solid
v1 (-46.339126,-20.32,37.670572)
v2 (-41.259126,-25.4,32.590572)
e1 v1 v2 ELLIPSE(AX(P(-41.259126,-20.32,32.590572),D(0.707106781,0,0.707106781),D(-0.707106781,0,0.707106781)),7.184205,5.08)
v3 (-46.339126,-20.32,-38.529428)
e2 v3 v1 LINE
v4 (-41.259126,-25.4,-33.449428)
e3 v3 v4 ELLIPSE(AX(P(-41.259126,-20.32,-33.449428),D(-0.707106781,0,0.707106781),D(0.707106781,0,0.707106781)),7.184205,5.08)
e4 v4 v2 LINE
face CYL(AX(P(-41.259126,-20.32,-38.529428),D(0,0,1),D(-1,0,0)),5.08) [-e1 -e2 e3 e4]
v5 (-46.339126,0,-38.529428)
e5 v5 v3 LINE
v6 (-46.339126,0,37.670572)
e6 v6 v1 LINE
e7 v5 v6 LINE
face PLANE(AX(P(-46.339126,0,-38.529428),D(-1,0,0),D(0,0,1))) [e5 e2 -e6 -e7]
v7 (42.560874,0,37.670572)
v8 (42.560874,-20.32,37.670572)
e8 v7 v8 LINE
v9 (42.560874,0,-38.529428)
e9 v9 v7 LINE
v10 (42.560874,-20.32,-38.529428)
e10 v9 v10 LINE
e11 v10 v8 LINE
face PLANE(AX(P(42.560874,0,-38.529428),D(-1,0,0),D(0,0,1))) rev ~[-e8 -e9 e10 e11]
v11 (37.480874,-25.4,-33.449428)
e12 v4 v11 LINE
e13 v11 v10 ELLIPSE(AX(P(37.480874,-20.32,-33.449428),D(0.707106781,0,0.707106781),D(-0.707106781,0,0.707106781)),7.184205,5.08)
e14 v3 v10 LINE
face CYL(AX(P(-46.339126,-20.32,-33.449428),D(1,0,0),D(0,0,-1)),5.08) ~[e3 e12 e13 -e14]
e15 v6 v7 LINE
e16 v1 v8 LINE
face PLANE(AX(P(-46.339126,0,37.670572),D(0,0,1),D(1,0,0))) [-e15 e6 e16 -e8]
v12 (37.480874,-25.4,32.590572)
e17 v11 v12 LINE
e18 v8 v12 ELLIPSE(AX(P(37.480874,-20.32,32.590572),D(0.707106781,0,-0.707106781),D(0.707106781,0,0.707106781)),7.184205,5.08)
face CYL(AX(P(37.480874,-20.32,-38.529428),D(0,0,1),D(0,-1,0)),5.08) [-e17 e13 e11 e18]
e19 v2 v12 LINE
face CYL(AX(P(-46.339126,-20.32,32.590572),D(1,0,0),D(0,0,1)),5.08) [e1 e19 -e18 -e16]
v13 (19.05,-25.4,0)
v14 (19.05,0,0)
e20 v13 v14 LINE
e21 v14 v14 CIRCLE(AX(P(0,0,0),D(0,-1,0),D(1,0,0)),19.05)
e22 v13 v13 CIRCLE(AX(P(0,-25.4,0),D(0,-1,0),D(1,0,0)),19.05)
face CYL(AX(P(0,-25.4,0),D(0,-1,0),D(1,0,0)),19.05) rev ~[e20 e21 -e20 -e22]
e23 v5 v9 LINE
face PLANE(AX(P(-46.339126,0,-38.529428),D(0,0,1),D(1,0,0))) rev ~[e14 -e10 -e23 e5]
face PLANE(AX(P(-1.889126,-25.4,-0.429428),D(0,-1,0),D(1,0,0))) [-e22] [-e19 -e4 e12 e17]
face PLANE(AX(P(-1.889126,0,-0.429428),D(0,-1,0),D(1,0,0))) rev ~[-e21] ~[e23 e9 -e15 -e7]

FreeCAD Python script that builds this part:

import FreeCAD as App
import Part
import Sketcher
from FreeCAD import Vector
Q = App.Units.Quantity


def edges_at(feature, points):
    """Names of the edges that pass closest to the given points."""
    edges = feature.Shape.Edges
    near = lambda p: min(range(len(edges)), key=lambda i: edges[i].distToShape(Part.Vertex(*p))[0])
    return sorted({f"Edge{near(p) + 1}" for p in points})

doc = App.newDocument("Part")
body = doc.addObject("PartDesign::Body", "Body")

sketch1 = body.newObject("Sketcher::SketchObject", "Sketch")
sketch1.AttachmentSupport = (doc.getObject("XZ_Plane"), [""])
sketch1.MapMode = "FlatFace"
sketch1.addGeometry(Part.LineSegment(Vector(-46.339126, 37.670572, 0), Vector(-46.339126, -38.529428, 0)), False)
sketch1.addGeometry(Part.LineSegment(Vector(-46.339126, -38.529428, 0), Vector(42.560874, -38.529428, 0)), False)
sketch1.addGeometry(Part.LineSegment(Vector(42.560874, -38.529428, 0), Vector(42.560874, 37.670572, 0)), False)
sketch1.addGeometry(Part.LineSegment(Vector(42.560874, 37.670572, 0), Vector(-46.339126, 37.670572, 0)), False)
sketch1.addConstraint(Sketcher.Constraint("Coincident", 0, 2, 1, 1))
sketch1.addConstraint(Sketcher.Constraint("Coincident", 1, 2, 2, 1))
sketch1.addConstraint(Sketcher.Constraint("Coincident", 2, 2, 3, 1))
sketch1.addConstraint(Sketcher.Constraint("Coincident", 3, 2, 0, 1))
sketch1.addConstraint(Sketcher.Constraint("Vertical", 0))
sketch1.addConstraint(Sketcher.Constraint("Horizontal", 1))
sketch1.addConstraint(Sketcher.Constraint("Vertical", 2))
sketch1.addConstraint(Sketcher.Constraint("Horizontal", 3))
sketch1.addConstraint(Sketcher.Constraint("DistanceY", 0, 2, 0, 1, Q("3 in")))
sketch1.addConstraint(Sketcher.Constraint("DistanceX", 1, 1, 1, 2, Q("3.5 in")))
sketch1.addConstraint(Sketcher.Constraint("DistanceY", 0, 2, -1, 1, Q("38.529428 mm")))
sketch1.addConstraint(Sketcher.Constraint("DistanceX", 0, 2, -1, 1, Q("46.339126 mm")))
pad1 = body.newObject("PartDesign::Pad", "Pad")
pad1.Profile = sketch1
pad1.Length = Q("1 in")

sketch2 = body.newObject("Sketcher::SketchObject", "Sketch001")
sketch2.AttachmentSupport = (doc.getObject("XZ_Plane"), [""])
sketch2.MapMode = "FlatFace"
sketch2.AttachmentOffset = App.Placement(Vector(0, 0, 1 * 25.4), App.Rotation())
sketch2.addGeometry(Part.Circle(Vector(0, 0, 0), Vector(0, 0, 1), 19.05), False)
sketch2.addConstraint(Sketcher.Constraint("Coincident", 0, 3, -1, 1))
sketch2.addConstraint(Sketcher.Constraint("Diameter", 0, Q("1.5 in")))
pocket1 = body.newObject("PartDesign::Pocket", "Pocket")
pocket1.Profile = sketch2
pocket1.Length = Q("1 in")
doc.recompute()

fillet = body.newObject("PartDesign::Fillet", "Fillet")
fillet.Base = (pocket1, edges_at(pocket1, [
    (-46.339, -25.4, -0.429),
    (-1.889, -25.4, 37.671),
    (42.561, -25.4, -0.429),
    (-1.889, -25.4, -38.529),
]))
fillet.Radius = Q("0.2 in")

doc.recompute()
